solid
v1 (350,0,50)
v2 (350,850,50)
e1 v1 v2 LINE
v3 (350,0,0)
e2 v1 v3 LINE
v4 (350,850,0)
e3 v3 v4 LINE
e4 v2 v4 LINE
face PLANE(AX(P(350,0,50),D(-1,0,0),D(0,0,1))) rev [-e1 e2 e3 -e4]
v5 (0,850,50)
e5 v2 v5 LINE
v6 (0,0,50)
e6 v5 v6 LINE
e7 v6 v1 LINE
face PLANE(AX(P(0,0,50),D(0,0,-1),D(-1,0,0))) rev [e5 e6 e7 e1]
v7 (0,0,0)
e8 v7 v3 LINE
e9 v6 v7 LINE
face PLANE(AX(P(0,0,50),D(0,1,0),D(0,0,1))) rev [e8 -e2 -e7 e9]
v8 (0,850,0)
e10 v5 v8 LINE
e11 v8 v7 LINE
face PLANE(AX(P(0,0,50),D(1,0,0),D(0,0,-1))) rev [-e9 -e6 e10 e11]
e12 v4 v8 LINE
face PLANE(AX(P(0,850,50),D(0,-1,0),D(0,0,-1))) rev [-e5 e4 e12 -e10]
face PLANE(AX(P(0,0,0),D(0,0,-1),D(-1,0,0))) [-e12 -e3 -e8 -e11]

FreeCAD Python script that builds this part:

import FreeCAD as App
import Part
import Sketcher

V = App.Vector

doc = App.newDocument("Part")
body = doc.addObject("PartDesign::Body", "Body")

sketch1 = doc.addObject("Sketcher::SketchObject", "Sketch")
body.addObject(sketch1)
sketch1.AttachmentSupport = (doc.XY_Plane, [""])
sketch1.MapMode = "FlatFace"
sketch1.addGeometry([
    Part.LineSegment(V(0, 850, 0), V(0, 0, 0)),
    Part.LineSegment(V(0, 0, 0), V(350, 0, 0)),
    Part.LineSegment(V(350, 0, 0), V(350, 850, 0)),
    Part.LineSegment(V(350, 850, 0), V(0, 850, 0)),
], False)
sketch1.addConstraint([
    Sketcher.Constraint("Coincident", 0, 2, 1, 1),
    Sketcher.Constraint("Coincident", 1, 2, 2, 1),
    Sketcher.Constraint("Coincident", 2, 2, 3, 1),
    Sketcher.Constraint("Coincident", 3, 2, 0, 1),
    Sketcher.Constraint("Vertical", 0),
    Sketcher.Constraint("Horizontal", 1),
    Sketcher.Constraint("Vertical", 2),
    Sketcher.Constraint("Horizontal", 3),
    Sketcher.Constraint("Coincident", 0, 2, -1, 1),
    Sketcher.Constraint("DistanceX", 1, 1, 1, 2, 350.0),
    Sketcher.Constraint("DistanceY", 0, 2, 0, 1, 850.0),
])
pad1 = doc.addObject("PartDesign::Pad", "Pad")
body.addObject(pad1)
pad1.Profile = sketch1
pad1.Length = 50

doc.recompute()
